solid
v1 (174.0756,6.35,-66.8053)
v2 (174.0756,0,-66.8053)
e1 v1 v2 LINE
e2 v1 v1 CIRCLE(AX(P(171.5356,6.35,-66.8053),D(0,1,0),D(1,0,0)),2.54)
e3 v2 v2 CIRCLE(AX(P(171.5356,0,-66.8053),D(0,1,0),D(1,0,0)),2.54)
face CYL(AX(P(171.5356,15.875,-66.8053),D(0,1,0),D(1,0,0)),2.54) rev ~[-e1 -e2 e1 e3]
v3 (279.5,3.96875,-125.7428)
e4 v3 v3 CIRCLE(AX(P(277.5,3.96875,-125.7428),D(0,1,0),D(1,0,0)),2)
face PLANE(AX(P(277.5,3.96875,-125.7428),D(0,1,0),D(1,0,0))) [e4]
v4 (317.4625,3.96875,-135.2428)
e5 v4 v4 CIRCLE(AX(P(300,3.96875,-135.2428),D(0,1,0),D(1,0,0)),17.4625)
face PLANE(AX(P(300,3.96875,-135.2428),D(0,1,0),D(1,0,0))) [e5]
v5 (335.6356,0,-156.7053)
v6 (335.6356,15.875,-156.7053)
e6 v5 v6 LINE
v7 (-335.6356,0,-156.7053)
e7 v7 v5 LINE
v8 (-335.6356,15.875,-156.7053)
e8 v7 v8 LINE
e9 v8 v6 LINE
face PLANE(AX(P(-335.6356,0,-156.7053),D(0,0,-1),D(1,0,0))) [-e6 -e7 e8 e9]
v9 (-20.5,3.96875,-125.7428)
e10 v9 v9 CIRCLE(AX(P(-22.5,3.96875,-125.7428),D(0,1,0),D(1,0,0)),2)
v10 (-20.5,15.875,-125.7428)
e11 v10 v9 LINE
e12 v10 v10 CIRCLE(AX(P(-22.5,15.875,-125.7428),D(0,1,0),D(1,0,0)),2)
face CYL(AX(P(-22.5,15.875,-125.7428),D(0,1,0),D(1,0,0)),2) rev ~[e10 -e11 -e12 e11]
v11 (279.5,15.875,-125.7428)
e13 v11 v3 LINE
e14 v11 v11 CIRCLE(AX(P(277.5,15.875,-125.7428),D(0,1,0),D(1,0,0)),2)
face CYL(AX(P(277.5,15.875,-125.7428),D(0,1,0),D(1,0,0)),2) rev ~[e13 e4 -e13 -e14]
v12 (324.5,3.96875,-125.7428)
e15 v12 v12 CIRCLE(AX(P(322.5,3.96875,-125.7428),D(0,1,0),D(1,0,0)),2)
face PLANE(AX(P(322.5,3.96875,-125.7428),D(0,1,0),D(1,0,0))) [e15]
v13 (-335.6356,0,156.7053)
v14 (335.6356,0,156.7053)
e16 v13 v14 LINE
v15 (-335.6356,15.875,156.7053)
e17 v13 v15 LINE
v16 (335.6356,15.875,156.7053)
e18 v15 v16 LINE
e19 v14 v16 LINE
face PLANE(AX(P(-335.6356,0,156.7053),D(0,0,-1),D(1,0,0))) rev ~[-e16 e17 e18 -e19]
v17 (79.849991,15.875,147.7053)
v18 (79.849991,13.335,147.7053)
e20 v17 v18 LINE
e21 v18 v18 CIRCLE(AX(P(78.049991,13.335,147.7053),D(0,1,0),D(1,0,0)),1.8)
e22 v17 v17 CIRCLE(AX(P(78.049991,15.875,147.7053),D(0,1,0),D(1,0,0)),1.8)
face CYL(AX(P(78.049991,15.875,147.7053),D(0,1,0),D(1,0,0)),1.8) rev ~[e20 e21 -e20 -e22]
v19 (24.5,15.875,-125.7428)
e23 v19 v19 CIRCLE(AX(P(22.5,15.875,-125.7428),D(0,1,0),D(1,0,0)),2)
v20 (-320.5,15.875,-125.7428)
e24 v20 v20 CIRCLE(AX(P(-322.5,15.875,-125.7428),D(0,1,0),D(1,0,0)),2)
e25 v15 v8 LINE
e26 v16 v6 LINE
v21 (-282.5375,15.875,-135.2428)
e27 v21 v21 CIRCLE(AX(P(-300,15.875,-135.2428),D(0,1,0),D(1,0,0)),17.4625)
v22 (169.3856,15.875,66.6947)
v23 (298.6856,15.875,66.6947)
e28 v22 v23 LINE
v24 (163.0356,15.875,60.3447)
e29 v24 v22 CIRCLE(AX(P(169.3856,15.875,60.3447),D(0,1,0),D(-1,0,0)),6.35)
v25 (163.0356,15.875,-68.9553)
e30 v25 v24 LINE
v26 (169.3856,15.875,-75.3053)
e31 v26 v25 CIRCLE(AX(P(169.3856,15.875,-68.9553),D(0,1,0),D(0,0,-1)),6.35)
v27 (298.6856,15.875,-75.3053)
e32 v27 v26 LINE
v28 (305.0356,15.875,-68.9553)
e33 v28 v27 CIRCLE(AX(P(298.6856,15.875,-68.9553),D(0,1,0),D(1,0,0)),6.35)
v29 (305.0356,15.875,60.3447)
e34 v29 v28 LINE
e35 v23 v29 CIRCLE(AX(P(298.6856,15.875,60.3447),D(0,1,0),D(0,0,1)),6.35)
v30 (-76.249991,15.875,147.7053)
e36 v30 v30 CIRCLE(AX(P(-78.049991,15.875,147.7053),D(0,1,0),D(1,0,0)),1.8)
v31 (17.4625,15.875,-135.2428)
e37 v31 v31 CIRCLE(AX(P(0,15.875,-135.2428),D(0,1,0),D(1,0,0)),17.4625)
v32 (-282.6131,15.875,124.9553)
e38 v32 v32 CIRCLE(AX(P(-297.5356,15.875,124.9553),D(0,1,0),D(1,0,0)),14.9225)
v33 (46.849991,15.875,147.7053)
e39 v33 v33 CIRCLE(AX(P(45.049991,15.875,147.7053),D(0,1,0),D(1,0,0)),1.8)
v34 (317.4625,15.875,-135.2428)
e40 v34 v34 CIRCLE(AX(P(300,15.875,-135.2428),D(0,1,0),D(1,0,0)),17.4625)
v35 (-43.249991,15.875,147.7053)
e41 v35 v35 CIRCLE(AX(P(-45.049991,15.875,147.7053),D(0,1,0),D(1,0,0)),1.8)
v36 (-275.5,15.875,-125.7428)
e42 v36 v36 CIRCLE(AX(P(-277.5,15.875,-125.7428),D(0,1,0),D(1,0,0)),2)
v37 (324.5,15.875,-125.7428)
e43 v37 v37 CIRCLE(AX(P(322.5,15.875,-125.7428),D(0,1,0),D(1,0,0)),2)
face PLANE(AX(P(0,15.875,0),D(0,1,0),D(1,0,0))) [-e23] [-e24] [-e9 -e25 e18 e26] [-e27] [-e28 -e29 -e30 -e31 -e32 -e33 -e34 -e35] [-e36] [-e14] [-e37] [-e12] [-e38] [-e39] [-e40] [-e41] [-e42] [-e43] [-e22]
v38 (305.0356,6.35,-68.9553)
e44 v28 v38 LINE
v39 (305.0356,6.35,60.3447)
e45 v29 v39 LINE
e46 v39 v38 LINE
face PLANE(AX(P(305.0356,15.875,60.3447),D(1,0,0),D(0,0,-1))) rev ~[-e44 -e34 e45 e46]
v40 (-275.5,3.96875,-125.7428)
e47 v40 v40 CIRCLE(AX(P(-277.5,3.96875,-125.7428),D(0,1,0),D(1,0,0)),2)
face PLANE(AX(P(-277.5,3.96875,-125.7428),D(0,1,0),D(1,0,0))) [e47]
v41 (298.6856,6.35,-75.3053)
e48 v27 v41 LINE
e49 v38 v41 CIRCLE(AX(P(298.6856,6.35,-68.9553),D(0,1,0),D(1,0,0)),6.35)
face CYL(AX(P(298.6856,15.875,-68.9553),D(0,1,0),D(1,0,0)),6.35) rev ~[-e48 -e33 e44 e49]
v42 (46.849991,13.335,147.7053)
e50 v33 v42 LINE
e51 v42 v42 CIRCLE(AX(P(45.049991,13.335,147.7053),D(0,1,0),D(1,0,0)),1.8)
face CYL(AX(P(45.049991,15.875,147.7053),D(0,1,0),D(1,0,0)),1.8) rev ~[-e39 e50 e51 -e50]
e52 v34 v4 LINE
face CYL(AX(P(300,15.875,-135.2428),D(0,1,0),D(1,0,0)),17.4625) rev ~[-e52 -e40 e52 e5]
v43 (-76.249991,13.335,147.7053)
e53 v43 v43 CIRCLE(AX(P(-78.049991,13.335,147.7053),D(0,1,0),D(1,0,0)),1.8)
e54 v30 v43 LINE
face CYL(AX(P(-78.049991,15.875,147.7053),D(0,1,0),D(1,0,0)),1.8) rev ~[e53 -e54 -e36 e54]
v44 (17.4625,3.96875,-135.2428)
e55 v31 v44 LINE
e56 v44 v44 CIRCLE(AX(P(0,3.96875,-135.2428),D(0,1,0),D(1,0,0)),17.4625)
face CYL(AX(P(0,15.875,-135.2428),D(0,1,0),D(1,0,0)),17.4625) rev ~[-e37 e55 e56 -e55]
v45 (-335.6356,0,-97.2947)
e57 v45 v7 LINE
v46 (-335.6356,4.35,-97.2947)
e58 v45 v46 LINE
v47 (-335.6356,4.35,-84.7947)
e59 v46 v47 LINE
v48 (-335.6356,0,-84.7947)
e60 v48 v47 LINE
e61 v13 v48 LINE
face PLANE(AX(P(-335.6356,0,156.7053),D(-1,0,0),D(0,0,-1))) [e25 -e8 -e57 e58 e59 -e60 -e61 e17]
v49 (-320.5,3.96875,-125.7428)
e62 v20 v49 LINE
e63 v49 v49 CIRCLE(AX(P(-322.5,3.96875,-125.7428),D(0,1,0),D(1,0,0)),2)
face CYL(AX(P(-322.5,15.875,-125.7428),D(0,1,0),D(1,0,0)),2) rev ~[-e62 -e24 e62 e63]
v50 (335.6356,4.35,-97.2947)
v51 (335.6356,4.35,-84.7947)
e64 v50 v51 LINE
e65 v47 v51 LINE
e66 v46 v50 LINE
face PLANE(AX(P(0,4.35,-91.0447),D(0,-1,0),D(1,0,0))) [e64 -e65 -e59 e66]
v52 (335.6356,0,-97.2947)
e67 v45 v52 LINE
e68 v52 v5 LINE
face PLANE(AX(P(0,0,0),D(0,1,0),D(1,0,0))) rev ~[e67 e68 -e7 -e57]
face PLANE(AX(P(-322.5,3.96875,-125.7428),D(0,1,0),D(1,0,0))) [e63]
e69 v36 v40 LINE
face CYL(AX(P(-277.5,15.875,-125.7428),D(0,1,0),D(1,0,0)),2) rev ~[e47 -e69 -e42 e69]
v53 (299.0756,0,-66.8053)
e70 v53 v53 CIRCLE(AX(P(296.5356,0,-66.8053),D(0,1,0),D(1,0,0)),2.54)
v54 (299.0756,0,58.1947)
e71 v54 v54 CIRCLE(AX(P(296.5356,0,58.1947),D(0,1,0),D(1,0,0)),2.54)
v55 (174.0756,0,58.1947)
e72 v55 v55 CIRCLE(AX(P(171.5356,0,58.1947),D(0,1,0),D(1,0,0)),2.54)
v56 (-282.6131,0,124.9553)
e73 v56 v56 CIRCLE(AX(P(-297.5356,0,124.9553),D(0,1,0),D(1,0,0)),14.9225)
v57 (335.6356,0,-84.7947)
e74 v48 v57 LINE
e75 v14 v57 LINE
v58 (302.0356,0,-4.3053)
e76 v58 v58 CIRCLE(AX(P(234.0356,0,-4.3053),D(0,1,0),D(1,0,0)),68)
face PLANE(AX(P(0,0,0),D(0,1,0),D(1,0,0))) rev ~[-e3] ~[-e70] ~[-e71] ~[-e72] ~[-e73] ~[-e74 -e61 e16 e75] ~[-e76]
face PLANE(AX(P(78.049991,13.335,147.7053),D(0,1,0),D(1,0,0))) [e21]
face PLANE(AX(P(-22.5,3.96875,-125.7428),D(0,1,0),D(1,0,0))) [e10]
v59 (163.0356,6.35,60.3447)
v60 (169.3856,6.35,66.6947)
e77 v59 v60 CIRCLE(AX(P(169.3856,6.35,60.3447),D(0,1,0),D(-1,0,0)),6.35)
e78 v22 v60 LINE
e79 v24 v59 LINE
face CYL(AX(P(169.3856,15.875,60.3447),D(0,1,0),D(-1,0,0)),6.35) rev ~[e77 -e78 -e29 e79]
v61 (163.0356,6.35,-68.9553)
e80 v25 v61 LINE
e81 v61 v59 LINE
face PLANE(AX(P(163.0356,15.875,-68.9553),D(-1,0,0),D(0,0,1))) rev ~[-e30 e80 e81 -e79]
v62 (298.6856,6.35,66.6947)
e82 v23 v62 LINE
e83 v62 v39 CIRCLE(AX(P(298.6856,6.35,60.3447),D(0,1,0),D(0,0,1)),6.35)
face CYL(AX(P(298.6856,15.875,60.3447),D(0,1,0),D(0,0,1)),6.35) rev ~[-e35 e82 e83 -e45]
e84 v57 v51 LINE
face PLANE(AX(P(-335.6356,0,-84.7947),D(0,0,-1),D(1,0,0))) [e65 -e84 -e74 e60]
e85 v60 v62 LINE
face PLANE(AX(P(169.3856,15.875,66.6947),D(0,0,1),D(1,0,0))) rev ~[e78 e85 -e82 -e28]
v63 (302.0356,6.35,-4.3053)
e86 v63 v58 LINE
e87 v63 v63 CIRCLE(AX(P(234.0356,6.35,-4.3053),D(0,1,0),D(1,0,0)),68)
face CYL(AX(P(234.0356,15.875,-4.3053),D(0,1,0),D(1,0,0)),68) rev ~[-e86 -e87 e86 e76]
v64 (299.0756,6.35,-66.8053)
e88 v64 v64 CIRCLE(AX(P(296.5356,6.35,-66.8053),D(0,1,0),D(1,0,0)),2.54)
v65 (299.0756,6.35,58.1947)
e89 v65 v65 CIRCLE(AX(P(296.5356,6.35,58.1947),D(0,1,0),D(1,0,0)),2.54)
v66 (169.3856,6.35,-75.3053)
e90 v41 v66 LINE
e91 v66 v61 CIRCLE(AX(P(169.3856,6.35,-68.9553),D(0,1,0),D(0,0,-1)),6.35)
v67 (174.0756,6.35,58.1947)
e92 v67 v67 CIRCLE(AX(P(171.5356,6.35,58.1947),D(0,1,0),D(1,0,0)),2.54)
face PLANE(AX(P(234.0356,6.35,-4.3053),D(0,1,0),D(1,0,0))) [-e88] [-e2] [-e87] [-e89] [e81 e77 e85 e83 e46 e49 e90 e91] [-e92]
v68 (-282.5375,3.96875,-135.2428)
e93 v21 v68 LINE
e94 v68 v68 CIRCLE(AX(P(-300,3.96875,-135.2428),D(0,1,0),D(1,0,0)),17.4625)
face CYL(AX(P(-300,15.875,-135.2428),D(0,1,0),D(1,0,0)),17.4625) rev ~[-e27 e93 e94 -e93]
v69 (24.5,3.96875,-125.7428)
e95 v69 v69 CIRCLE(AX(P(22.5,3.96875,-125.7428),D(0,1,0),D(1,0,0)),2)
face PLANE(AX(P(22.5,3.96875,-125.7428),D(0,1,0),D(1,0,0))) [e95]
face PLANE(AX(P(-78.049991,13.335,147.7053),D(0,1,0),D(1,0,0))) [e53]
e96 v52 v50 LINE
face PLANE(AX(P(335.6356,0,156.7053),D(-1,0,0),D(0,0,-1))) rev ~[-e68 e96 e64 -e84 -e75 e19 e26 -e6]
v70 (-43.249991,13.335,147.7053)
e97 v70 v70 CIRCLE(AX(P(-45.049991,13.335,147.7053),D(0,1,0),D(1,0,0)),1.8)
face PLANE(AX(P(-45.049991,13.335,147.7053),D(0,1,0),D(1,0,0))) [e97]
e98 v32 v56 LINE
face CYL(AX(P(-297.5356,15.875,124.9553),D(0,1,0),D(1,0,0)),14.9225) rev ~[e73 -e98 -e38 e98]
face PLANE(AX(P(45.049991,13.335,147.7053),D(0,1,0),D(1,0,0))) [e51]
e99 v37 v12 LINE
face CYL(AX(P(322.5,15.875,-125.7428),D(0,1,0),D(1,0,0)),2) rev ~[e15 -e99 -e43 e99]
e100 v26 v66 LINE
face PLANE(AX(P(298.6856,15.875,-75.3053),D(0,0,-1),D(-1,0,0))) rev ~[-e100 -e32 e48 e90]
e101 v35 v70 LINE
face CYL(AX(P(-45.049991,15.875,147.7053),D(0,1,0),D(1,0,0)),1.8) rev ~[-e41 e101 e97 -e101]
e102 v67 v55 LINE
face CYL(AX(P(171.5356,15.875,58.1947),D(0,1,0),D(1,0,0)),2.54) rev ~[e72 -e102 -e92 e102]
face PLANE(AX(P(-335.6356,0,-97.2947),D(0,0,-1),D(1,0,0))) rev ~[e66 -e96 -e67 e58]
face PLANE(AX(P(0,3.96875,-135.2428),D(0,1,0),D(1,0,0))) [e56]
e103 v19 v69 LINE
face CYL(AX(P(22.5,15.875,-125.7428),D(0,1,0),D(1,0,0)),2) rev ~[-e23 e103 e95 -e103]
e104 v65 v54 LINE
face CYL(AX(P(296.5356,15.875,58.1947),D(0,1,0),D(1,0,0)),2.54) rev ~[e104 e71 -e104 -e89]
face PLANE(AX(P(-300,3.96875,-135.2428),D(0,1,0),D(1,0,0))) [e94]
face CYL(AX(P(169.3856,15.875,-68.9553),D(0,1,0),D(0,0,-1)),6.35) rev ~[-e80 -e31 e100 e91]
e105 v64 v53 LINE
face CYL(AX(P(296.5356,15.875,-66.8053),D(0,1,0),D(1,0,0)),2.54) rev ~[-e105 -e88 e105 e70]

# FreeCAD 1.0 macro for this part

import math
import FreeCAD as App
import Part
import Sketcher

V = App.Vector
Q = App.Units.Quantity

doc = App.newDocument("Part")
body = doc.addObject("PartDesign::Body", "Body")

# Sketch on XZ plane
sketch1 = body.newObject("Sketcher::SketchObject", "Sketch")
sketch1.AttachmentSupport = (doc.getObject("XZ_Plane"), [""])
sketch1.MapMode = "FlatFace"
sketch1.addGeometry([
    Part.LineSegment(V(-336, -157, 0), V(-336, 157, 0)),
    Part.LineSegment(V(-336, 157, 0), V(336, 157, 0)),
    Part.LineSegment(V(336, 157, 0), V(336, -157, 0)),
    Part.LineSegment(V(336, -157, 0), V(-336, -157, 0)),
], False)
sketch1.addConstraint([
    Sketcher.Constraint("Coincident", 0, 2, 1, 1),
    Sketcher.Constraint("Coincident", 1, 2, 2, 1),
    Sketcher.Constraint("Coincident", 2, 2, 3, 1),
    Sketcher.Constraint("Coincident", 3, 2, 0, 1),
    Sketcher.Constraint("Vertical", 0),
    Sketcher.Constraint("Horizontal", 1),
    Sketcher.Constraint("Vertical", 2),
    Sketcher.Constraint("Horizontal", 3),
    Sketcher.Constraint("Symmetric", 0, 2, 2, 2, -1, 1),
    Sketcher.Constraint("DistanceX", 1, 1, 1, 2, Q("26.428 in")),
    Sketcher.Constraint("DistanceY", 0, 1, 0, 2, Q("12.339 in")),
])
pad1 = body.newObject("PartDesign::Pad", "Pad")
pad1.Profile = sketch1
pad1.Length = Q("0.625 in")
pad1.Reversed = True

# Sketch on XZ plane
sketch2 = body.newObject("Sketcher::SketchObject", "Sketch001")
sketch2.AttachmentSupport = (doc.getObject("XZ_Plane"), [""])
sketch2.MapMode = "FlatFace"
sketch2.AttachmentOffset = App.Placement(V(0, 0, -0.625 * 25.4), App.Rotation())
sketch2.addGeometry(Part.Circle(V(-298, 125, 0), V(0, 0, 1), 15), False)
sketch2.addConstraint([
    Sketcher.Constraint("Diameter", 0, Q("1.175 in")),
    Sketcher.Constraint("DistanceX", 0, 3, -1, 1, Q("11.714 in")),
    Sketcher.Constraint("DistanceY", -1, 1, 0, 3, Q("4.9195 in")),
])
pocket1 = body.newObject("PartDesign::Pocket", "Pocket")
pocket1.Profile = sketch2
pocket1.Type = "ThroughAll"
pocket1.Midplane = True

# Sketch on XZ plane
sketch3 = body.newObject("Sketcher::SketchObject", "Sketch002")
sketch3.AttachmentSupport = (doc.getObject("XZ_Plane"), [""])
sketch3.MapMode = "FlatFace"
sketch3.AttachmentOffset = App.Placement(V(0, 0, -0.625 * 25.4), App.Rotation())
sketch3.addGeometry([
    Part.Circle(V(0, -135.2, 0), V(0, 0, 1), 17.5),  # 0
    Part.Circle(V(22.5, -125.7, 0), V(0, 0, 1), 2),  # 1
    Part.Circle(V(-22.5, -125.7, 0), V(0, 0, 1), 2),  # 2
    Part.Circle(V(-300, -135.2, 0), V(0, 0, 1), 17.5),  # 3
    Part.Circle(V(-277.5, -125.7, 0), V(0, 0, 1), 2),  # 4
    Part.Circle(V(-322.5, -125.7, 0), V(0, 0, 1), 2),  # 5
    Part.Circle(V(322.5, -125.7, 0), V(0, 0, 1), 2),  # 6
    Part.Circle(V(277.5, -125.7, 0), V(0, 0, 1), 2),  # 7
    Part.Circle(V(300, -135.2, 0), V(0, 0, 1), 17.5),  # 8
], False)
sketch3.addConstraint([
    Sketcher.Constraint("Equal", 1, 2),
    Sketcher.Constraint("Equal", 0, 3),
    Sketcher.Constraint("Equal", 2, 4),
    Sketcher.Constraint("Equal", 4, 5),
    Sketcher.Constraint("Equal", 5, 6),
    Sketcher.Constraint("Equal", 6, 7),
    Sketcher.Constraint("Equal", 3, 8),
    Sketcher.Constraint("Symmetric", 1, 3, 2, 3, -2),
    Sketcher.Constraint("Symmetric", 5, 3, 6, 3, -2),
    Sketcher.Constraint("Symmetric", 4, 3, 7, 3, -2),
    Sketcher.Constraint("Symmetric", 3, 3, 8, 3, -2),
    Sketcher.Constraint("PointOnObject", 0, 3, -2),
    Sketcher.Constraint("Horizontal", 0, 3, 3, 3),
    Sketcher.Constraint("Horizontal", 2, 3, 4, 3),
    Sketcher.Constraint("Horizontal", 4, 3, 5, 3),
    Sketcher.Constraint("Diameter", 0, Q("1.375 in")),
    Sketcher.Constraint("Diameter", 1, Q("4 mm")),
    Sketcher.Constraint("DistanceY", 0, 3, -1, 1, Q("135.2428 mm")),
    Sketcher.Constraint("DistanceX", -1, 1, 1, 3, Q("22.5 mm")),
    Sketcher.Constraint("DistanceY", 1, 3, -1, 1, Q("125.7428 mm")),
    Sketcher.Constraint("DistanceX", 3, 3, -1, 1, Q("300 mm")),
    Sketcher.Constraint("DistanceX", 4, 3, -1, 1, Q("277.5 mm")),
    Sketcher.Constraint("DistanceX", 5, 3, -1, 1, Q("322.5 mm")),
])
pocket2 = body.newObject("PartDesign::Pocket", "Pocket001")
pocket2.Profile = sketch3
pocket2.Length = Q("0.46875 in")
pocket2.Reversed = True

# Sketch on XZ plane
sketch4 = body.newObject("Sketcher::SketchObject", "Sketch003")
sketch4.AttachmentSupport = (doc.getObject("XZ_Plane"), [""])
sketch4.MapMode = "FlatFace"
sketch4.AttachmentOffset = App.Placement(V(0, 0, -0.625 * 25.4), App.Rotation())
sketch4.addGeometry([
    Part.Circle(V(78, 147.7, 0), V(0, 0, 1), 1.8),
    Part.Circle(V(45, 147.7, 0), V(0, 0, 1), 1.8),
    Part.Circle(V(-45, 147.7, 0), V(0, 0, 1), 1.8),
    Part.Circle(V(-78, 147.7, 0), V(0, 0, 1), 1.8),
], False)
sketch4.addConstraint([
    Sketcher.Constraint("Equal", 0, 1),
    Sketcher.Constraint("Equal", 1, 2),
    Sketcher.Constraint("Equal", 2, 3),
    Sketcher.Constraint("Symmetric", 1, 3, 2, 3, -2),
    Sketcher.Constraint("Symmetric", 0, 3, 3, 3, -2),
    Sketcher.Constraint("Horizontal", 0, 3, 1, 3),
    Sketcher.Constraint("Diameter", 0, Q("3.6 mm")),
    Sketcher.Constraint("DistanceY", -1, 1, 0, 3, Q("147.7053 mm")),
    Sketcher.Constraint("DistanceX", 1, 3, 0, 3, Q("33 mm")),
    Sketcher.Constraint("DistanceX", -1, 1, 0, 3, Q("78.049991 mm")),
])
pocket3 = body.newObject("PartDesign::Pocket", "Pocket002")
pocket3.Profile = sketch4
pocket3.Length = Q("0.1 in")
pocket3.Reversed = True

# Sketch on XZ plane
sketch5 = body.newObject("Sketcher::SketchObject", "Sketch004")
sketch5.AttachmentSupport = (doc.getObject("XZ_Plane"), [""])
sketch5.MapMode = "FlatFace"
sketch5.AttachmentOffset = App.Placement(V(0, 0, -0.625 * 25.4), App.Rotation())
sketch5.addGeometry([
    Part.Circle(V(234, -4.3, 0), V(0, 0, 1), 68),  # 0
    Part.Circle(V(296.5, 58.2, 0), V(0, 0, 1), 2.5),  # 1
    Part.Circle(V(296.5, -66.8, 0), V(0, 0, 1), 2.5),  # 2
    Part.Circle(V(171.5, -66.8, 0), V(0, 0, 1), 2.5),  # 3
    Part.Circle(V(171.5, 58.2, 0), V(0, 0, 1), 2.5),  # 4
], False)
sketch5.addConstraint([
    Sketcher.Constraint("Equal", 1, 2),
    Sketcher.Constraint("Equal", 2, 3),
    Sketcher.Constraint("Equal", 3, 4),
    Sketcher.Constraint("Horizontal", 2, 3, 3, 3),
    Sketcher.Constraint("Horizontal", 1, 3, 4, 3),
    Sketcher.Constraint("Vertical", 1, 3, 2, 3),
    Sketcher.Constraint("Vertical", 3, 3, 4, 3),
    Sketcher.Constraint("Diameter", 1, Q("0.2 in")),
    Sketcher.Constraint("Diameter", 0, Q("136 mm")),
    Sketcher.Constraint("DistanceX", -1, 1, 0, 3, Q("9.214 in")),
    Sketcher.Constraint("DistanceY", 0, 3, -1, 1, Q("0.1695 in")),
    Sketcher.Constraint("DistanceX", -1, 1, 1, 3, Q("296.5356 mm")),
    Sketcher.Constraint("DistanceY", -1, 1, 1, 3, Q("58.1947 mm")),
    Sketcher.Constraint("DistanceY", 2, 3, -1, 1, Q("66.8053 mm")),
    Sketcher.Constraint("DistanceX", -1, 1, 3, 3, Q("171.5356 mm")),
])
pocket4 = body.newObject("PartDesign::Pocket", "Pocket003")
pocket4.Profile = sketch5
pocket4.Type = "ThroughAll"
pocket4.Midplane = True

# Sketch on XZ plane
sketch6 = body.newObject("Sketcher::SketchObject", "Sketch005")
sketch6.AttachmentSupport = (doc.getObject("XZ_Plane"), [""])
sketch6.MapMode = "FlatFace"
sketch6.AttachmentOffset = App.Placement(V(0, 0, -0.625 * 25.4), App.Rotation())
sketch6.addGeometry([
    Part.LineSegment(V(169, 67, 0), V(299, 67, 0)),  # 0
    Part.ArcOfCircle(Part.Circle(V(299, 60, 0), V(0, 0, 1), 6), math.radians(0), math.radians(90)),  # 1
    Part.LineSegment(V(305, 60, 0), V(305, -69, 0)),  # 2
    Part.ArcOfCircle(Part.Circle(V(299, -69, 0), V(0, 0, 1), 6), math.radians(-90), math.radians(0)),  # 3
    Part.LineSegment(V(299, -75, 0), V(169, -75, 0)),  # 4
    Part.ArcOfCircle(Part.Circle(V(169, -69, 0), V(0, 0, 1), 6), math.radians(180), math.radians(270)),  # 5
    Part.LineSegment(V(163, -69, 0), V(163, 60, 0)),  # 6
    Part.ArcOfCircle(Part.Circle(V(169, 60, 0), V(0, 0, 1), 6), math.radians(90), math.radians(180)),  # 7
], False)
sketch6.addConstraint([
    Sketcher.Constraint("Tangent", 0, 2, 1, 2),
    Sketcher.Constraint("Tangent", 1, 1, 2, 1),
    Sketcher.Constraint("Tangent", 2, 2, 3, 2),
    Sketcher.Constraint("Tangent", 3, 1, 4, 1),
    Sketcher.Constraint("Tangent", 4, 2, 5, 2),
    Sketcher.Constraint("Tangent", 5, 1, 6, 1),
    Sketcher.Constraint("Tangent", 6, 2, 7, 2),
    Sketcher.Constraint("Tangent", 7, 1, 0, 1),
    Sketcher.Constraint("Horizontal", 0),
    Sketcher.Constraint("Vertical", 2),
    Sketcher.Constraint("Horizontal", 4),
    Sketcher.Constraint("Vertical", 6),
    Sketcher.Constraint("Equal", 1, 3),
    Sketcher.Constraint("Equal", 3, 5),
    Sketcher.Constraint("Equal", 5, 7),
    Sketcher.Constraint("Equal", 4, 2),
    Sketcher.Constraint("Radius", 1, Q("0.25 in")),
    Sketcher.Constraint("DistanceX", 0, 1, 0, 2, Q("129.3 mm")),
    Sketcher.Constraint("DistanceX", -1, 1, 1, 3, Q("298.6856 mm")),
    Sketcher.Constraint("DistanceY", -1, 1, 1, 3, Q("60.3447 mm")),
])
pocket5 = body.newObject("PartDesign::Pocket", "Pocket004")
pocket5.Profile = sketch6
pocket5.Length = Q("0.375 in")
pocket5.Reversed = True

# Sketch on XZ plane
sketch7 = body.newObject("Sketcher::SketchObject", "Sketch006")
sketch7.AttachmentSupport = (doc.getObject("XZ_Plane"), [""])
sketch7.MapMode = "FlatFace"
sketch7.addGeometry([
    Part.LineSegment(V(-336, -85, 0), V(-336, -97, 0)),
    Part.LineSegment(V(-336, -97, 0), V(336, -97, 0)),
    Part.LineSegment(V(336, -97, 0), V(336, -85, 0)),
    Part.LineSegment(V(336, -85, 0), V(-336, -85, 0)),
], False)
sketch7.addConstraint([
    Sketcher.Constraint("Coincident", 0, 2, 1, 1),
    Sketcher.Constraint("Coincident", 1, 2, 2, 1),
    Sketcher.Constraint("Coincident", 2, 2, 3, 1),
    Sketcher.Constraint("Coincident", 3, 2, 0, 1),
    Sketcher.Constraint("Vertical", 0),
    Sketcher.Constraint("Horizontal", 1),
    Sketcher.Constraint("Vertical", 2),
    Sketcher.Constraint("Horizontal", 3),
    Sketcher.Constraint("DistanceX", 1, 1, 1, 2, Q("26.428 in")),
    Sketcher.Constraint("DistanceX", 0, 2, -1, 1, Q("13.214 in")),
    Sketcher.Constraint("DistanceY", 0, 2, 0, 1, Q("12.5 mm")),
    Sketcher.Constraint("DistanceY", 0, 2, -1, 1, Q("3.8305 in")),
])
pocket6 = body.newObject("PartDesign::Pocket", "Pocket005")
pocket6.Profile = sketch7
pocket6.Length = 4.35

doc.recompute()
